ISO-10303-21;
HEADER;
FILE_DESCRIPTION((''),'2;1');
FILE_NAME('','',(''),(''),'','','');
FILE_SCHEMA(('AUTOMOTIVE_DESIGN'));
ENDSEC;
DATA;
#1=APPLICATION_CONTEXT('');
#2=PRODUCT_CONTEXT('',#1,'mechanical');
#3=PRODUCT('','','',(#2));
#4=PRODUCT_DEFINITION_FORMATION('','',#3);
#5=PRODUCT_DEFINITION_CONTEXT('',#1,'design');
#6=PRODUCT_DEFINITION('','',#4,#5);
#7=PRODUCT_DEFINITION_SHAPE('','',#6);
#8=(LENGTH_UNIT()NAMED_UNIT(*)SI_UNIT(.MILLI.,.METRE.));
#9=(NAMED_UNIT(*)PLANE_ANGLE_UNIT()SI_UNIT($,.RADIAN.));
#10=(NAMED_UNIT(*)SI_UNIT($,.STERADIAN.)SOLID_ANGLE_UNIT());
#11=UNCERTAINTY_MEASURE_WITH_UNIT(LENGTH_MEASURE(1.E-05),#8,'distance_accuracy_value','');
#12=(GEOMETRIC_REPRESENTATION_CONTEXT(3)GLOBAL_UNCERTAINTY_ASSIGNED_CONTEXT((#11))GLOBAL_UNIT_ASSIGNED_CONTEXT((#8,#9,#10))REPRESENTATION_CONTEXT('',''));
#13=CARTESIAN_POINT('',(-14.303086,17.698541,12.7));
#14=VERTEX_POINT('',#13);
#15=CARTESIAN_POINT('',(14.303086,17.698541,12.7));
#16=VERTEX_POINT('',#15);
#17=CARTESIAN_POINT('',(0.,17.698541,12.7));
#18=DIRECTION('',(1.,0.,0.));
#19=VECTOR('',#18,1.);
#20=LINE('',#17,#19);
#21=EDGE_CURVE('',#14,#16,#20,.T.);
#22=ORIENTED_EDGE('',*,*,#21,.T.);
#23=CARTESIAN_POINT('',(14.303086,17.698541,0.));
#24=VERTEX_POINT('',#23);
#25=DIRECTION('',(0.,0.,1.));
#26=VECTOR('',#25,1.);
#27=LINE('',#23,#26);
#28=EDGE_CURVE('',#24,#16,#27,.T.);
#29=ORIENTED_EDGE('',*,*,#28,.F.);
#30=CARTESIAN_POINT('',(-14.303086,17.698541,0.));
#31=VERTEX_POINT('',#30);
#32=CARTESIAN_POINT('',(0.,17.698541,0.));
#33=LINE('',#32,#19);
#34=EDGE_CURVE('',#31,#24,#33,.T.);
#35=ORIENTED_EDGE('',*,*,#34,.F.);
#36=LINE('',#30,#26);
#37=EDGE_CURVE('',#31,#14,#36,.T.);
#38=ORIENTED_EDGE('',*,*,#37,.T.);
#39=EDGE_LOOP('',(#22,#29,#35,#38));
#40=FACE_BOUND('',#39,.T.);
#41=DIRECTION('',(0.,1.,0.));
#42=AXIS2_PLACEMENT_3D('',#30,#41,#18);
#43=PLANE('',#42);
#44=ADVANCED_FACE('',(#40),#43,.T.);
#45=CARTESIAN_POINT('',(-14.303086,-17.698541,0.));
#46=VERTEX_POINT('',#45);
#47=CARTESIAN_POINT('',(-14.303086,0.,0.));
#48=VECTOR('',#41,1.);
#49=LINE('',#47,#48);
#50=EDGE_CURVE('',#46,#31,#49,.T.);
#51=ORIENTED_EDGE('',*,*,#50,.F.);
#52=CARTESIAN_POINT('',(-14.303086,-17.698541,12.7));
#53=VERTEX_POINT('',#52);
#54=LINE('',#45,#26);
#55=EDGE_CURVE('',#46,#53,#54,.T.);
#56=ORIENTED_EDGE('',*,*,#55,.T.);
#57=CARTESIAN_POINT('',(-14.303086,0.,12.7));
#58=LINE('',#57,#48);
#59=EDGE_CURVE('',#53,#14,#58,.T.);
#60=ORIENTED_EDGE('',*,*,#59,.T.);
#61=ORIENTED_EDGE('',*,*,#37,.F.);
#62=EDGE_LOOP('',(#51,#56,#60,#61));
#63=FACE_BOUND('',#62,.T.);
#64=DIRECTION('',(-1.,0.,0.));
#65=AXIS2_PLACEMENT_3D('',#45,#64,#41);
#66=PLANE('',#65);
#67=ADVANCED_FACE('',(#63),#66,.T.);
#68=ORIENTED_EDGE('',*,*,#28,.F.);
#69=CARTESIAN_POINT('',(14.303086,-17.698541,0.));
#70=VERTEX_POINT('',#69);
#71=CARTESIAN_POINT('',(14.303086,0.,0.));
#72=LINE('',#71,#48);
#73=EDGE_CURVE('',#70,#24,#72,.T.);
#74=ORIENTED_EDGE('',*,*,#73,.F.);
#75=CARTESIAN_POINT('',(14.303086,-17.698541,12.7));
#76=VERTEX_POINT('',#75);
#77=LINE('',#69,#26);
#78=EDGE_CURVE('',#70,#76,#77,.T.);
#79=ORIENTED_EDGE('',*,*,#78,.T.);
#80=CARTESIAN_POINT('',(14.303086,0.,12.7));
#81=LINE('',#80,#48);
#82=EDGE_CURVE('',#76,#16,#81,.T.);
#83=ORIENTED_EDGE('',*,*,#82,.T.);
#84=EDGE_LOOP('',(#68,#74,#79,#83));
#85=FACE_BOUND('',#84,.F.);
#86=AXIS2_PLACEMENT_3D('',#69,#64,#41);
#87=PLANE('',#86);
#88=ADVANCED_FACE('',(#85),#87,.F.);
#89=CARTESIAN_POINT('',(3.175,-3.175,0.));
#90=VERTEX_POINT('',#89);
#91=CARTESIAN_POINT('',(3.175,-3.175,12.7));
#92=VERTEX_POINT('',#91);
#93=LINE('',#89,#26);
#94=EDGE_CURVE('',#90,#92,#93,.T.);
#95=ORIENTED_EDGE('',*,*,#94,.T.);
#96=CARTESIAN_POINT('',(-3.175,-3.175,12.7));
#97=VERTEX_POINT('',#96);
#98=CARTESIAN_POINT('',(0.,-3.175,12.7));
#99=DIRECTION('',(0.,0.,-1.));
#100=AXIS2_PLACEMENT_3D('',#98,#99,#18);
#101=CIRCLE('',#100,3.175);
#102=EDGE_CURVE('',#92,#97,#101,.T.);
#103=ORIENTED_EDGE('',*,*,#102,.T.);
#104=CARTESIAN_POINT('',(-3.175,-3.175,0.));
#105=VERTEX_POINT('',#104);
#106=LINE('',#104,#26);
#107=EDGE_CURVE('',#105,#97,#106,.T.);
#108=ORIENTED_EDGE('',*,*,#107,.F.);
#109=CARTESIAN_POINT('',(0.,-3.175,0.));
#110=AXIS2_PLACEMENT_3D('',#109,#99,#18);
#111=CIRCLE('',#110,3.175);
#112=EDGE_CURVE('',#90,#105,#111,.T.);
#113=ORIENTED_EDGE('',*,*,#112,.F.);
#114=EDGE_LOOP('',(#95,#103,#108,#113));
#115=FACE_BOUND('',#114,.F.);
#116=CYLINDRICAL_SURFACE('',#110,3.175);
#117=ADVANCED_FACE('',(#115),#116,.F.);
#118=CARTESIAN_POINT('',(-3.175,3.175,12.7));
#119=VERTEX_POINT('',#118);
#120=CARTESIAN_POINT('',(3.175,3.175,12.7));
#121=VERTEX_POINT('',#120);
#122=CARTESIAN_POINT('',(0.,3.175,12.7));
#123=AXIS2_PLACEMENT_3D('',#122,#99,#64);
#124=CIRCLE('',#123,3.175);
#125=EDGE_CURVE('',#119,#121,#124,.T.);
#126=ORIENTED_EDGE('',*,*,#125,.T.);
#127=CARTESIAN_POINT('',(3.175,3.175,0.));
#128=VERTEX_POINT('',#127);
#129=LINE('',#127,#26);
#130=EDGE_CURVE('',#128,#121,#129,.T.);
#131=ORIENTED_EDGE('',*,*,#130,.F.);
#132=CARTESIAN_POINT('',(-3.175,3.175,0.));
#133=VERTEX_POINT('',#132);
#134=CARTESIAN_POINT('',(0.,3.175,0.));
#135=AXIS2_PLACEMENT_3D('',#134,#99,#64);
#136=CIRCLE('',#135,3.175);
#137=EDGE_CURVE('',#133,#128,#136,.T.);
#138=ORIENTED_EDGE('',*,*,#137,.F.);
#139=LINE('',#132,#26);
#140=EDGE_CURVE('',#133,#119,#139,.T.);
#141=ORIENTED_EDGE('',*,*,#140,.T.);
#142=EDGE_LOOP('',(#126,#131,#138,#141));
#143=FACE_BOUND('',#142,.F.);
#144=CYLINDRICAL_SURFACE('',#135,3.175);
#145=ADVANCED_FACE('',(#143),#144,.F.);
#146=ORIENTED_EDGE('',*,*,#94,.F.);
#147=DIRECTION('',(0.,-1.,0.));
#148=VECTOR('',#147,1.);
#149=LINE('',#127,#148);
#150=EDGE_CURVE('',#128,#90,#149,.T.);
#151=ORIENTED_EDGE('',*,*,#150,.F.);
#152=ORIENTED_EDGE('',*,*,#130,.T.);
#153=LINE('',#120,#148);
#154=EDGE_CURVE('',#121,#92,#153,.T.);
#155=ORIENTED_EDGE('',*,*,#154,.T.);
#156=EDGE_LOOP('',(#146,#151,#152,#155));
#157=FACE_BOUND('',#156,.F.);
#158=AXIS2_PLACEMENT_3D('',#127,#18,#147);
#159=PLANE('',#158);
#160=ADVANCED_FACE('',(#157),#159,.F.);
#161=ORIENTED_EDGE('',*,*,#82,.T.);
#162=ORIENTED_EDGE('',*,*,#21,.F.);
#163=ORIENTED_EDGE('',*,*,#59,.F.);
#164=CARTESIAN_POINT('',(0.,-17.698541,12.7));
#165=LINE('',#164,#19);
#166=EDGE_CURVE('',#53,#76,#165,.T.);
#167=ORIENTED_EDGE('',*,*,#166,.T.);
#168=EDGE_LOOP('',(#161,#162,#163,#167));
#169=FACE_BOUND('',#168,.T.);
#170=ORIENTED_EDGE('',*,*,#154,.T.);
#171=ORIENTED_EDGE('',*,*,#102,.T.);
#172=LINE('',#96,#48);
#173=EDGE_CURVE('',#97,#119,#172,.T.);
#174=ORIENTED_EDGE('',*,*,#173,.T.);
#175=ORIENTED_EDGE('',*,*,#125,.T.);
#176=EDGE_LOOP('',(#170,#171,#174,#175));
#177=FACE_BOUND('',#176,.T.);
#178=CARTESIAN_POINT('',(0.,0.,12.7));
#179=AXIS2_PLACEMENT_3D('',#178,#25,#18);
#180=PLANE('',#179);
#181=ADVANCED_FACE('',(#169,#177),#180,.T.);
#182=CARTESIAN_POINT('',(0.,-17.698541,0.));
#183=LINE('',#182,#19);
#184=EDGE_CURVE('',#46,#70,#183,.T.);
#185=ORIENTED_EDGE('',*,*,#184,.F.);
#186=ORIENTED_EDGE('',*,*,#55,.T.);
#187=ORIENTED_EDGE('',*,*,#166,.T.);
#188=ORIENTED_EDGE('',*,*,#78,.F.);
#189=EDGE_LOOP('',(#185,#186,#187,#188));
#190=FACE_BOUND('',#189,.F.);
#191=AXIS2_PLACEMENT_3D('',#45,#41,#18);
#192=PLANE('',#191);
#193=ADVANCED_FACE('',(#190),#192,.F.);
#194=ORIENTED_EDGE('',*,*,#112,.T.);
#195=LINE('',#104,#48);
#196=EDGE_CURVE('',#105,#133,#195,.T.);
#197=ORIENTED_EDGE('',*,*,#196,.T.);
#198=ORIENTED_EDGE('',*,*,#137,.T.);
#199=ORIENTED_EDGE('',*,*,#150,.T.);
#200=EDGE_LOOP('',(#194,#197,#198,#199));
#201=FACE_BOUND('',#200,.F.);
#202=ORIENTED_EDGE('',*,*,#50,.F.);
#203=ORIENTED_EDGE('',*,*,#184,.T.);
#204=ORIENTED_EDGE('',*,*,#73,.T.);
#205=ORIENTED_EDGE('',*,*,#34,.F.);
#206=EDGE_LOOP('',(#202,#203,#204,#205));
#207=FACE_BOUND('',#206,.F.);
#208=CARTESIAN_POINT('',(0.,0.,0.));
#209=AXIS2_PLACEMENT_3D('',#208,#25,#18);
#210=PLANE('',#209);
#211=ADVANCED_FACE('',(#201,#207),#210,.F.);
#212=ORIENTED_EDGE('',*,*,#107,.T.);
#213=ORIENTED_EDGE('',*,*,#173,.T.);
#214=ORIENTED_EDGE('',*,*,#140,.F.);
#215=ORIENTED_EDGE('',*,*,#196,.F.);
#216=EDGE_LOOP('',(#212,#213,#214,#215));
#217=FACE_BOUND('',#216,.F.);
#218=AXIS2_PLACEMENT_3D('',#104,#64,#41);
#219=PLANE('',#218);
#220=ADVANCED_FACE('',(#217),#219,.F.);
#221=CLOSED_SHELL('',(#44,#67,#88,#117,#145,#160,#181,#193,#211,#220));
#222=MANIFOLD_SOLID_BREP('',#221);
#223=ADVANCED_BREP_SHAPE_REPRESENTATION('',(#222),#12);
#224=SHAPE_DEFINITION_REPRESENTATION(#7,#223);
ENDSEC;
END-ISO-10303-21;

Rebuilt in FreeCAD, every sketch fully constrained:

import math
import FreeCAD as App
import Part
import Sketcher

V = App.Vector
Q = App.Units.Quantity

doc = App.newDocument("Part")
body = doc.addObject("PartDesign::Body", "Body")

# Sketch on XY plane
sketch1 = doc.addObject("Sketcher::SketchObject", "Sketch")
body.addObject(sketch1)
sketch1.AttachmentSupport = (doc.XY_Plane, [""])
sketch1.MapMode = "FlatFace"
sketch1.addGeometry([
    Part.LineSegment(V(-14.303086, 17.698541, 0), V(-14.303086, -17.698541, 0)),  # 0
    Part.LineSegment(V(-14.303086, -17.698541, 0), V(14.303086, -17.698541, 0)),  # 1
    Part.LineSegment(V(14.303086, -17.698541, 0), V(14.303086, 17.698541, 0)),  # 2
    Part.LineSegment(V(14.303086, 17.698541, 0), V(-14.303086, 17.698541, 0)),  # 3
    Part.ArcOfCircle(Part.Circle(V(0, 3.175, 0), V(0, 0, 1), 3.175), math.radians(0), math.radians(180)),  # 4
    Part.LineSegment(V(3.175, 3.175, 0), V(3.175, -3.175, 0)),  # 5
    Part.ArcOfCircle(Part.Circle(V(0, -3.175, 0), V(0, 0, 1), 3.175), math.radians(180), math.radians(360)),  # 6
    Part.LineSegment(V(-3.175, -3.175, 0), V(-3.175, 3.175, 0)),  # 7
], False)
sketch1.addConstraint([
    Sketcher.Constraint("Coincident", 0, 2, 1, 1),
    Sketcher.Constraint("Coincident", 1, 2, 2, 1),
    Sketcher.Constraint("Coincident", 2, 2, 3, 1),
    Sketcher.Constraint("Coincident", 3, 2, 0, 1),
    Sketcher.Constraint("Tangent", 4, 1, 5, 1),
    Sketcher.Constraint("Tangent", 5, 2, 6, 2),
    Sketcher.Constraint("Tangent", 6, 1, 7, 1),
    Sketcher.Constraint("Tangent", 7, 2, 4, 2),
    Sketcher.Constraint("Vertical", 0),
    Sketcher.Constraint("Horizontal", 1),
    Sketcher.Constraint("Vertical", 2),
    Sketcher.Constraint("Horizontal", 3),
    Sketcher.Constraint("Vertical", 5),
    Sketcher.Constraint("Vertical", 7),
    Sketcher.Constraint("Symmetric", 4, 3, 6, 3, -1, 1),
    Sketcher.Constraint("Symmetric", 0, 2, 2, 2, -1, 1),
    Sketcher.Constraint("Radius", 4, Q("0.125 in")),
    Sketcher.Constraint("DistanceY", 5, 2, 5, 1, Q("0.25 in")),
    Sketcher.Constraint("DistanceY", 0, 2, 0, 1, Q("35.397082 mm")),
    Sketcher.Constraint("DistanceX", 1, 1, 1, 2, Q("28.606172 mm")),
])
pad1 = doc.addObject("PartDesign::Pad", "Pad")
body.addObject(pad1)
pad1.Profile = sketch1
pad1.Length = Q("0.5 in")

doc.recompute()
